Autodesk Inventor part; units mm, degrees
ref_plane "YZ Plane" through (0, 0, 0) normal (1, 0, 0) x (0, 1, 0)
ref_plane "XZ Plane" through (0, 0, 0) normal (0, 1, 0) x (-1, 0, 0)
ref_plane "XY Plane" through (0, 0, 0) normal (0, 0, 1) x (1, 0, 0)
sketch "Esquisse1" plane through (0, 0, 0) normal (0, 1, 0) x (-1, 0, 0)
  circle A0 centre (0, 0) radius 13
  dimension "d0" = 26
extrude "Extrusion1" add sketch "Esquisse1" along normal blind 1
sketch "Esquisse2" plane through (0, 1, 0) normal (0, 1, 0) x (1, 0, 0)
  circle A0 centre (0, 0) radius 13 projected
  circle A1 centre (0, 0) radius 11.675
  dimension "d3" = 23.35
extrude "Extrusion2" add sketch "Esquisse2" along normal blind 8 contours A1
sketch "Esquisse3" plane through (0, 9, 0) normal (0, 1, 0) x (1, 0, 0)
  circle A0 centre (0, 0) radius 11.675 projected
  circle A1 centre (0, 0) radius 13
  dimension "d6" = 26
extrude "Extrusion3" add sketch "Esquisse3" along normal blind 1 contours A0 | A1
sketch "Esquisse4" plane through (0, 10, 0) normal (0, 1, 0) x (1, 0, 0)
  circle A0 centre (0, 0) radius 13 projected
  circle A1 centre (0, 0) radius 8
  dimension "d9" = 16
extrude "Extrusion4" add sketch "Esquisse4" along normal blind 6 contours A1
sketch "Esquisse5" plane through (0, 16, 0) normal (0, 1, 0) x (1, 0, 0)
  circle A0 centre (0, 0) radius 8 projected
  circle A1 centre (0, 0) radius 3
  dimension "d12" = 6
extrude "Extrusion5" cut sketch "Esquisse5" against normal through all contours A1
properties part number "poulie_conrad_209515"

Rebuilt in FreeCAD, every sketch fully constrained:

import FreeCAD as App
import Part
import Sketcher

V = App.Vector
Q = App.Units.Quantity

doc = App.newDocument("Part")
body = doc.addObject("PartDesign::Body", "Body")

sketch1 = doc.addObject("Sketcher::SketchObject", "Sketch")
body.addObject(sketch1)
sketch1.AttachmentSupport = (doc.XZ_Plane, [""])
sketch1.MapMode = "FlatFace"
sketch1.addGeometry(Part.Circle(V(0, 0, 0), V(0, 0, 1), 13), False)
sketch1.addConstraint(Sketcher.Constraint("Coincident", 0, 3, -1, 1))
sketch1.addConstraint(Sketcher.Constraint("Diameter", 0, Q("26 mm")))
pad1 = doc.addObject("PartDesign::Pad", "Pad")
body.addObject(pad1)
pad1.Profile = sketch1
pad1.Length = 1
pad1.Reversed = True

sketch2 = doc.addObject("Sketcher::SketchObject", "Sketch001")
body.addObject(sketch2)
sketch2.AttachmentSupport = (doc.XZ_Plane, [""])
sketch2.MapMode = "FlatFace"
sketch2.AttachmentOffset = App.Placement(V(0, 0, -1), App.Rotation())
sketch2.addGeometry(Part.Circle(V(0, 0, 0), V(0, 0, 1), 12), False)
sketch2.addConstraint(Sketcher.Constraint("Coincident", 0, 3, -1, 1))
sketch2.addConstraint(Sketcher.Constraint("Diameter", 0, Q("23.35 mm")))
pad2 = doc.addObject("PartDesign::Pad", "Pad001")
body.addObject(pad2)
pad2.Profile = sketch2
pad2.Length = 8
pad2.Reversed = True

sketch3 = doc.addObject("Sketcher::SketchObject", "Sketch002")
body.addObject(sketch3)
sketch3.AttachmentSupport = (doc.XZ_Plane, [""])
sketch3.MapMode = "FlatFace"
sketch3.AttachmentOffset = App.Placement(V(0, 0, -9), App.Rotation())
sketch3.addGeometry(Part.Circle(V(0, 0, 0), V(0, 0, 1), 13), False)
sketch3.addConstraint(Sketcher.Constraint("Coincident", 0, 3, -1, 1))
sketch3.addConstraint(Sketcher.Constraint("Diameter", 0, Q("26 mm")))
pad3 = doc.addObject("PartDesign::Pad", "Pad002")
body.addObject(pad3)
pad3.Profile = sketch3
pad3.Length = 1
pad3.Reversed = True

sketch4 = doc.addObject("Sketcher::SketchObject", "Sketch003")
body.addObject(sketch4)
sketch4.AttachmentSupport = (doc.XZ_Plane, [""])
sketch4.MapMode = "FlatFace"
sketch4.AttachmentOffset = App.Placement(V(0, 0, -10), App.Rotation())
sketch4.addGeometry(Part.Circle(V(0, 0, 0), V(0, 0, 1), 8), False)
sketch4.addConstraint(Sketcher.Constraint("Coincident", 0, 3, -1, 1))
sketch4.addConstraint(Sketcher.Constraint("Diameter", 0, Q("16 mm")))
pad4 = doc.addObject("PartDesign::Pad", "Pad003")
body.addObject(pad4)
pad4.Profile = sketch4
pad4.Length = 6
pad4.Reversed = True

sketch5 = doc.addObject("Sketcher::SketchObject", "Sketch004")
body.addObject(sketch5)
sketch5.AttachmentSupport = (doc.XZ_Plane, [""])
sketch5.MapMode = "FlatFace"
sketch5.AttachmentOffset = App.Placement(V(0, 0, -16), App.Rotation())
sketch5.addGeometry(Part.Circle(V(0, 0, 0), V(0, 0, 1), 3), False)
sketch5.addConstraint(Sketcher.Constraint("Coincident", 0, 3, -1, 1))
sketch5.addConstraint(Sketcher.Constraint("Diameter", 0, Q("6 mm")))
pocket1 = doc.addObject("PartDesign::Pocket", "Pocket")
body.addObject(pocket1)
pocket1.Profile = sketch5
pocket1.Type = "ThroughAll"
pocket1.Reversed = True

doc.recompute()
